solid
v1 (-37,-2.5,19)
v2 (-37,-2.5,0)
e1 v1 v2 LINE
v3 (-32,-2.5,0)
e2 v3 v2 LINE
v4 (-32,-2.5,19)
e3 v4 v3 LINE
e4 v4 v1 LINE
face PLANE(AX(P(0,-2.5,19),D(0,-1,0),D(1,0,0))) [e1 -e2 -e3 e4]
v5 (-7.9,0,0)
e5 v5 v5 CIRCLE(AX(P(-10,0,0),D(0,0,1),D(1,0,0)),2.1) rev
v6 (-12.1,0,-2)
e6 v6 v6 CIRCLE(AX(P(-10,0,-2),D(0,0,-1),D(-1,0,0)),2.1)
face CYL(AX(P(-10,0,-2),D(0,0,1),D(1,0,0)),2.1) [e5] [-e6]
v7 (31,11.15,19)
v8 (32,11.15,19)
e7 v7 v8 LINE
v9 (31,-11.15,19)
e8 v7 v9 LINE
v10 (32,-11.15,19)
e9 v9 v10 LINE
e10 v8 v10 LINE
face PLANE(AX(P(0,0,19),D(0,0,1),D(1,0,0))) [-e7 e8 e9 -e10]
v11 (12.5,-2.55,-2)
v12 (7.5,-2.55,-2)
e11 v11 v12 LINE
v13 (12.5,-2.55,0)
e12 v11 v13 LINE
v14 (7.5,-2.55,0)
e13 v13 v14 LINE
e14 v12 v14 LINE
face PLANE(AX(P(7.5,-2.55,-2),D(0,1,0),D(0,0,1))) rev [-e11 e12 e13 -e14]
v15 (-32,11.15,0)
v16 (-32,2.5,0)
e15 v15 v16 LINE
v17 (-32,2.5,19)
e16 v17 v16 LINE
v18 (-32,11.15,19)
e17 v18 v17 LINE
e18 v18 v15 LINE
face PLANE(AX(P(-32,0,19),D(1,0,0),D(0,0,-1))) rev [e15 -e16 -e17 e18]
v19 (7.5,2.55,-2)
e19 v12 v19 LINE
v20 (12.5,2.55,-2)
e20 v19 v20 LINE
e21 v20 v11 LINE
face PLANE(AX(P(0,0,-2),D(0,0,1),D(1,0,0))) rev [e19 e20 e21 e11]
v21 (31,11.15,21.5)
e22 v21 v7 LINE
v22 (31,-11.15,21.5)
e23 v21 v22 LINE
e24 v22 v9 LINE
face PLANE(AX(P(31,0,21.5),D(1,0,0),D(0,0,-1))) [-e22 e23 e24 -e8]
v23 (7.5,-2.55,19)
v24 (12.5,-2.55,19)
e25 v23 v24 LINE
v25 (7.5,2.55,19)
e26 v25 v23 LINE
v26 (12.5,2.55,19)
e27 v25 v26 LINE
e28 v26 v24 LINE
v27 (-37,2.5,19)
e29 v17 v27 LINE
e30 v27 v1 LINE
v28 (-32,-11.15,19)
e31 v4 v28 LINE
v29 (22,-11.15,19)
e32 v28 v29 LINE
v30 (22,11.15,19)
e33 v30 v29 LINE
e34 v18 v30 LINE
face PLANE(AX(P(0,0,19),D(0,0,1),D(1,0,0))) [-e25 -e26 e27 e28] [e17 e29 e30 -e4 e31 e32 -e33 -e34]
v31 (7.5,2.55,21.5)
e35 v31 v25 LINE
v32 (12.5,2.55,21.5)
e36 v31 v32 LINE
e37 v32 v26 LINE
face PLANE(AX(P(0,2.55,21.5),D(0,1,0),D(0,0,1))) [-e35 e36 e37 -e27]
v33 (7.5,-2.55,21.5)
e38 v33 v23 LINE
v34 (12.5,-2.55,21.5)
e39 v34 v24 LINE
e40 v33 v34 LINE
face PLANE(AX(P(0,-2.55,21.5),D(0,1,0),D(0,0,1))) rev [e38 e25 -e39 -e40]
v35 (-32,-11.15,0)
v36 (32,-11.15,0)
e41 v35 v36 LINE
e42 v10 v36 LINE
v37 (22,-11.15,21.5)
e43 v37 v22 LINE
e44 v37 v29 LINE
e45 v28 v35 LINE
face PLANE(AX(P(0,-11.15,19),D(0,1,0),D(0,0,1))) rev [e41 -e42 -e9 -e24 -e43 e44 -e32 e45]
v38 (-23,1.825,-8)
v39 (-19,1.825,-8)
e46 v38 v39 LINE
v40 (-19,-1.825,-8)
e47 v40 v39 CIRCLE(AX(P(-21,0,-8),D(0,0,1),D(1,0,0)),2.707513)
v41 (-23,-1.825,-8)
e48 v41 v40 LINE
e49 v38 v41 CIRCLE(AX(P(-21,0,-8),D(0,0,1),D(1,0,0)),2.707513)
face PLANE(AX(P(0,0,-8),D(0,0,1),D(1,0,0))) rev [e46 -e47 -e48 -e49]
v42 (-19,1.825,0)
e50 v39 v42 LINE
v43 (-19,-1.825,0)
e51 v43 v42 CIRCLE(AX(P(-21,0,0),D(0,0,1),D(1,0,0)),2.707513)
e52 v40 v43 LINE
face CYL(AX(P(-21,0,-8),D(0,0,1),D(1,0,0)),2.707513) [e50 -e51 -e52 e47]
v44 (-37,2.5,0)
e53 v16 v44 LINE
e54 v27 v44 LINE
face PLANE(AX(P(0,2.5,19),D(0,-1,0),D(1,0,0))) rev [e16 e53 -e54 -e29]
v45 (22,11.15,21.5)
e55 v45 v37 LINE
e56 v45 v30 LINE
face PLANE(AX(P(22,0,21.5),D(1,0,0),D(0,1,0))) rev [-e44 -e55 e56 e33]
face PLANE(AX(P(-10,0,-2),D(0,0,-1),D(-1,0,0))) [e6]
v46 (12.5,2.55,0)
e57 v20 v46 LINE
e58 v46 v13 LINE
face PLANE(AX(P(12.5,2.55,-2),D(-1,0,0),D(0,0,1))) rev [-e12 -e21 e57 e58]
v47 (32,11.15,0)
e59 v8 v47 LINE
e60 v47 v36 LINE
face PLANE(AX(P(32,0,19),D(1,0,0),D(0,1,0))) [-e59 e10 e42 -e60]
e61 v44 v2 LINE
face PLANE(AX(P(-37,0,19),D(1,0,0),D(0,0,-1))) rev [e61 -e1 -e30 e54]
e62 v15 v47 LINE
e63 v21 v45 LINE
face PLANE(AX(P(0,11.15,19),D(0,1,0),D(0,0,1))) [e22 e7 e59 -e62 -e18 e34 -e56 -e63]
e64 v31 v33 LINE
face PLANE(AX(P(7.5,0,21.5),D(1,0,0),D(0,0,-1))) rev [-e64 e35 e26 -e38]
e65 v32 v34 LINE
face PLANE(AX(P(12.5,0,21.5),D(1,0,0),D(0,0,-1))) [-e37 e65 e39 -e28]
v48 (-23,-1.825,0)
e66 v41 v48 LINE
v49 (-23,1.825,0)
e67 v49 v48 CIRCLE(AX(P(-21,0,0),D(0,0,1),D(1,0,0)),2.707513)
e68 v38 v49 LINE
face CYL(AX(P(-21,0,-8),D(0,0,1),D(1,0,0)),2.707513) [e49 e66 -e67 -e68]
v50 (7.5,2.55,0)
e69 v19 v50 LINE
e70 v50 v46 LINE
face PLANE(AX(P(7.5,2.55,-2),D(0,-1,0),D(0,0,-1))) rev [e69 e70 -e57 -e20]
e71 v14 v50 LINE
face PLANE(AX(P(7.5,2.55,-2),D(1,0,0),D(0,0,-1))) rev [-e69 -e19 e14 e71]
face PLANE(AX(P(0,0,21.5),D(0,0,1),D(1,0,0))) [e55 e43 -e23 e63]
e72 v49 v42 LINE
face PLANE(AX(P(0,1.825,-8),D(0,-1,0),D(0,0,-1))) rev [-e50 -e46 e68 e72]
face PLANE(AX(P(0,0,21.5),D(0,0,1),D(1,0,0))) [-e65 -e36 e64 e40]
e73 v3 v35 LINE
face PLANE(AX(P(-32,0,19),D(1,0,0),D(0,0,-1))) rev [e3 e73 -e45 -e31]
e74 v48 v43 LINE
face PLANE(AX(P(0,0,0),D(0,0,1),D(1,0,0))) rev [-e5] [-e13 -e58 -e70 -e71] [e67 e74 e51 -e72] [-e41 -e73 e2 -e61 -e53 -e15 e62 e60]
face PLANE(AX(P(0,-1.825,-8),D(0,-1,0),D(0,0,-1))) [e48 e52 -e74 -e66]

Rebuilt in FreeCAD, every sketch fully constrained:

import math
import FreeCAD as App
import Part
import Sketcher

V = App.Vector
Q = App.Units.Quantity

doc = App.newDocument("Part")
body = doc.addObject("PartDesign::Body", "Body")

sketch1 = body.newObject("Sketcher::SketchObject", "Sketch")
sketch1.AttachmentSupport = (doc.getObject("XY_Plane"), [""])
sketch1.MapMode = "FlatFace"
sketch1.addGeometry(Part.LineSegment(V(-32, -2.5, 0), V(-32, -11.15, 0)), False)
sketch1.addGeometry(Part.LineSegment(V(-32, -11.15, 0), V(32, -11.15, 0)), False)
sketch1.addGeometry(Part.LineSegment(V(32, -11.15, 0), V(32, 11.15, 0)), False)
sketch1.addGeometry(Part.LineSegment(V(32, 11.15, 0), V(-32, 11.15, 0)), False)
sketch1.addGeometry(Part.LineSegment(V(-32, 11.15, 0), V(-32, 2.5, 0)), False)
sketch1.addGeometry(Part.LineSegment(V(-32, 2.5, 0), V(-37, 2.5, 0)), False)
sketch1.addGeometry(Part.LineSegment(V(-37, 2.5, 0), V(-37, -2.5, 0)), False)
sketch1.addGeometry(Part.LineSegment(V(-37, -2.5, 0), V(-32, -2.5, 0)), False)
sketch1.addConstraint(Sketcher.Constraint("Coincident", 0, 2, 1, 1))
sketch1.addConstraint(Sketcher.Constraint("Coincident", 1, 2, 2, 1))
sketch1.addConstraint(Sketcher.Constraint("Coincident", 2, 2, 3, 1))
sketch1.addConstraint(Sketcher.Constraint("Coincident", 3, 2, 4, 1))
sketch1.addConstraint(Sketcher.Constraint("Coincident", 4, 2, 5, 1))
sketch1.addConstraint(Sketcher.Constraint("Coincident", 5, 2, 6, 1))
sketch1.addConstraint(Sketcher.Constraint("Coincident", 6, 2, 7, 1))
sketch1.addConstraint(Sketcher.Constraint("Coincident", 7, 2, 0, 1))
sketch1.addConstraint(Sketcher.Constraint("Vertical", 0))
sketch1.addConstraint(Sketcher.Constraint("Horizontal", 1))
sketch1.addConstraint(Sketcher.Constraint("Vertical", 2))
sketch1.addConstraint(Sketcher.Constraint("Horizontal", 3))
sketch1.addConstraint(Sketcher.Constraint("Vertical", 4))
sketch1.addConstraint(Sketcher.Constraint("Horizontal", 5))
sketch1.addConstraint(Sketcher.Constraint("Vertical", 6))
sketch1.addConstraint(Sketcher.Constraint("Horizontal", 7))
sketch1.addConstraint(Sketcher.Constraint("Symmetric", 0, 2, 2, 2, -1, 1))
sketch1.addConstraint(Sketcher.Constraint("Symmetric", 4, 2, 7, 2, -1))
sketch1.addConstraint(Sketcher.Constraint("Equal", 7, 6))
sketch1.addConstraint(Sketcher.Constraint("DistanceX", 1, 1, 1, 2, Q("64 mm")))
sketch1.addConstraint(Sketcher.Constraint("DistanceX", 5, 2, 5, 1, Q("5 mm")))
sketch1.addConstraint(Sketcher.Constraint("DistanceY", 2, 1, 2, 2, Q("22.3 mm")))
pad1 = body.newObject("PartDesign::Pad", "Pad")
pad1.Profile = sketch1
pad1.Length = 19

sketch2 = body.newObject("Sketcher::SketchObject", "Sketch001")
sketch2.AttachmentSupport = (doc.getObject("XY_Plane"), [""])
sketch2.MapMode = "FlatFace"
sketch2.addGeometry(Part.ArcOfCircle(Part.Circle(V(-21, 0, 0), V(0, 0, 1), 2.707513), math.radians(137.619549), math.radians(222.380451)), False)
sketch2.addGeometry(Part.LineSegment(V(-23, -1.825, 0), V(-19, -1.825, 0)), False)
sketch2.addGeometry(Part.ArcOfCircle(Part.Circle(V(-21, 0, 0), V(0, 0, 1), 2.707513), math.radians(-42.380451), math.radians(0)), False)
sketch2.addGeometry(Part.ArcOfCircle(Part.Circle(V(-21, 0, 0), V(0, 0, 1), 2.707513), math.radians(0), math.radians(42.380451)), False)
sketch2.addGeometry(Part.LineSegment(V(-19, 1.825, 0), V(-23, 1.825, 0)), False)
sketch2.addConstraint(Sketcher.Constraint("Coincident", 0, 2, 1, 1))
sketch2.addConstraint(Sketcher.Constraint("Coincident", 1, 2, 2, 1))
sketch2.addConstraint(Sketcher.Constraint("Tangent", 2, 2, 3, 1))
sketch2.addConstraint(Sketcher.Constraint("Coincident", 3, 2, 4, 1))
sketch2.addConstraint(Sketcher.Constraint("Coincident", 4, 2, 0, 1))
sketch2.addConstraint(Sketcher.Constraint("Horizontal", 1))
sketch2.addConstraint(Sketcher.Constraint("Horizontal", 4))
sketch2.addConstraint(Sketcher.Constraint("Coincident", 2, 3, 0, 3))
sketch2.addConstraint(Sketcher.Constraint("Equal", 0, 2))
sketch2.addConstraint(Sketcher.Constraint("Equal", 2, 3))
sketch2.addConstraint(Sketcher.Constraint("Symmetric", 1, 2, 3, 2, -1))
sketch2.addConstraint(Sketcher.Constraint("PointOnObject", 2, 2, -1))
sketch2.addConstraint(Sketcher.Constraint("DistanceX", 1, 1, 1, 2, Q("4 mm")))
sketch2.addConstraint(Sketcher.Constraint("DistanceX", 0, 3, -1, 1, Q("21 mm")))
sketch2.addConstraint(Sketcher.Constraint("DistanceY", 1, 2, 3, 2, Q("3.65 mm")))
pad2 = body.newObject("PartDesign::Pad", "Pad001")
pad2.Profile = sketch2
pad2.Length = 8
pad2.Reversed = True

sketch3 = body.newObject("Sketcher::SketchObject", "Sketch002")
sketch3.AttachmentSupport = (doc.getObject("XY_Plane"), [""])
sketch3.MapMode = "FlatFace"
sketch3.addGeometry(Part.Circle(V(-10, 0, 0), V(0, 0, 1), 2.1), False)
sketch3.addGeometry(Part.LineSegment(V(12.5, 2.55, 0), V(12.5, -2.55, 0)), False)
sketch3.addGeometry(Part.LineSegment(V(12.5, -2.55, 0), V(7.5, -2.55, 0)), False)
sketch3.addGeometry(Part.LineSegment(V(7.5, -2.55, 0), V(7.5, 2.55, 0)), False)
sketch3.addGeometry(Part.LineSegment(V(7.5, 2.55, 0), V(12.5, 2.55, 0)), False)
sketch3.addConstraint(Sketcher.Constraint("Coincident", 1, 2, 2, 1))
sketch3.addConstraint(Sketcher.Constraint("Coincident", 2, 2, 3, 1))
sketch3.addConstraint(Sketcher.Constraint("Coincident", 3, 2, 4, 1))
sketch3.addConstraint(Sketcher.Constraint("Coincident", 4, 2, 1, 1))
sketch3.addConstraint(Sketcher.Constraint("Vertical", 1))
sketch3.addConstraint(Sketcher.Constraint("Horizontal", 2))
sketch3.addConstraint(Sketcher.Constraint("Vertical", 3))
sketch3.addConstraint(Sketcher.Constraint("Horizontal", 4))
sketch3.addConstraint(Sketcher.Constraint("PointOnObject", 0, 3, -1))
sketch3.addConstraint(Sketcher.Constraint("Diameter", 0, Q("4.2 mm")))
sketch3.addConstraint(Sketcher.Constraint("DistanceX", 2, 2, 2, 1, Q("5 mm")))
sketch3.addConstraint(Sketcher.Constraint("DistanceY", 1, 2, 1, 1, Q("5.1 mm")))
sketch3.addConstraint(Sketcher.Constraint("DistanceX", 0, 3, -1, 1, Q("10 mm")))
sketch3.addConstraint(Sketcher.Constraint("DistanceX", -1, 1, 1, 2, Q("12.5 mm")))
sketch3.addConstraint(Sketcher.Constraint("DistanceY", 1, 2, -1, 1, Q("2.55 mm")))
pad3 = body.newObject("PartDesign::Pad", "Pad002")
pad3.Profile = sketch3
pad3.Length = 2
pad3.Reversed = True

sketch4 = body.newObject("Sketcher::SketchObject", "Sketch003")
sketch4.AttachmentSupport = (doc.getObject("XY_Plane"), [""])
sketch4.MapMode = "FlatFace"
sketch4.AttachmentOffset = App.Placement(V(0, 0, 19), App.Rotation())
sketch4.addGeometry(Part.LineSegment(V(7.5, 2.55, 0), V(7.5, -2.55, 0)), False)
sketch4.addGeometry(Part.LineSegment(V(7.5, -2.55, 0), V(12.5, -2.55, 0)), False)
sketch4.addGeometry(Part.LineSegment(V(12.5, -2.55, 0), V(12.5, 2.55, 0)), False)
sketch4.addGeometry(Part.LineSegment(V(12.5, 2.55, 0), V(7.5, 2.55, 0)), False)
sketch4.addGeometry(Part.LineSegment(V(22, 11.15, 0), V(22, -11.15, 0)), False)
sketch4.addGeometry(Part.LineSegment(V(22, -11.15, 0), V(31, -11.15, 0)), False)
sketch4.addGeometry(Part.LineSegment(V(31, -11.15, 0), V(31, 11.15, 0)), False)
sketch4.addGeometry(Part.LineSegment(V(31, 11.15, 0), V(22, 11.15, 0)), False)
sketch4.addConstraint(Sketcher.Constraint("Coincident", 0, 2, 1, 1))
sketch4.addConstraint(Sketcher.Constraint("Coincident", 1, 2, 2, 1))
sketch4.addConstraint(Sketcher.Constraint("Coincident", 2, 2, 3, 1))
sketch4.addConstraint(Sketcher.Constraint("Coincident", 3, 2, 0, 1))
sketch4.addConstraint(Sketcher.Constraint("Coincident", 4, 2, 5, 1))
sketch4.addConstraint(Sketcher.Constraint("Coincident", 5, 2, 6, 1))
sketch4.addConstraint(Sketcher.Constraint("Coincident", 6, 2, 7, 1))
sketch4.addConstraint(Sketcher.Constraint("Coincident", 7, 2, 4, 1))
sketch4.addConstraint(Sketcher.Constraint("Vertical", 0))
sketch4.addConstraint(Sketcher.Constraint("Horizontal", 1))
sketch4.addConstraint(Sketcher.Constraint("Vertical", 2))
sketch4.addConstraint(Sketcher.Constraint("Horizontal", 3))
sketch4.addConstraint(Sketcher.Constraint("Vertical", 4))
sketch4.addConstraint(Sketcher.Constraint("Horizontal", 5))
sketch4.addConstraint(Sketcher.Constraint("Vertical", 6))
sketch4.addConstraint(Sketcher.Constraint("Horizontal", 7))
sketch4.addConstraint(Sketcher.Constraint("DistanceX", 1, 1, 1, 2, Q("5 mm")))
sketch4.addConstraint(Sketcher.Constraint("DistanceX", 5, 1, 5, 2, Q("9 mm")))
sketch4.addConstraint(Sketcher.Constraint("DistanceY", 0, 2, 0, 1, Q("5.1 mm")))
sketch4.addConstraint(Sketcher.Constraint("DistanceY", 4, 2, 4, 1, Q("22.3 mm")))
sketch4.addConstraint(Sketcher.Constraint("DistanceX", -1, 1, 4, 2, Q("22 mm")))
sketch4.addConstraint(Sketcher.Constraint("DistanceX", -1, 1, 0, 2, Q("7.5 mm")))
sketch4.addConstraint(Sketcher.Constraint("DistanceY", 4, 2, 1, 2, Q("8.6 mm")))
sketch4.addConstraint(Sketcher.Constraint("DistanceY", 0, 2, -1, 1, Q("2.55 mm")))
pad4 = body.newObject("PartDesign::Pad", "Pad003")
pad4.Profile = sketch4
pad4.Length = 2.5

doc.recompute()
